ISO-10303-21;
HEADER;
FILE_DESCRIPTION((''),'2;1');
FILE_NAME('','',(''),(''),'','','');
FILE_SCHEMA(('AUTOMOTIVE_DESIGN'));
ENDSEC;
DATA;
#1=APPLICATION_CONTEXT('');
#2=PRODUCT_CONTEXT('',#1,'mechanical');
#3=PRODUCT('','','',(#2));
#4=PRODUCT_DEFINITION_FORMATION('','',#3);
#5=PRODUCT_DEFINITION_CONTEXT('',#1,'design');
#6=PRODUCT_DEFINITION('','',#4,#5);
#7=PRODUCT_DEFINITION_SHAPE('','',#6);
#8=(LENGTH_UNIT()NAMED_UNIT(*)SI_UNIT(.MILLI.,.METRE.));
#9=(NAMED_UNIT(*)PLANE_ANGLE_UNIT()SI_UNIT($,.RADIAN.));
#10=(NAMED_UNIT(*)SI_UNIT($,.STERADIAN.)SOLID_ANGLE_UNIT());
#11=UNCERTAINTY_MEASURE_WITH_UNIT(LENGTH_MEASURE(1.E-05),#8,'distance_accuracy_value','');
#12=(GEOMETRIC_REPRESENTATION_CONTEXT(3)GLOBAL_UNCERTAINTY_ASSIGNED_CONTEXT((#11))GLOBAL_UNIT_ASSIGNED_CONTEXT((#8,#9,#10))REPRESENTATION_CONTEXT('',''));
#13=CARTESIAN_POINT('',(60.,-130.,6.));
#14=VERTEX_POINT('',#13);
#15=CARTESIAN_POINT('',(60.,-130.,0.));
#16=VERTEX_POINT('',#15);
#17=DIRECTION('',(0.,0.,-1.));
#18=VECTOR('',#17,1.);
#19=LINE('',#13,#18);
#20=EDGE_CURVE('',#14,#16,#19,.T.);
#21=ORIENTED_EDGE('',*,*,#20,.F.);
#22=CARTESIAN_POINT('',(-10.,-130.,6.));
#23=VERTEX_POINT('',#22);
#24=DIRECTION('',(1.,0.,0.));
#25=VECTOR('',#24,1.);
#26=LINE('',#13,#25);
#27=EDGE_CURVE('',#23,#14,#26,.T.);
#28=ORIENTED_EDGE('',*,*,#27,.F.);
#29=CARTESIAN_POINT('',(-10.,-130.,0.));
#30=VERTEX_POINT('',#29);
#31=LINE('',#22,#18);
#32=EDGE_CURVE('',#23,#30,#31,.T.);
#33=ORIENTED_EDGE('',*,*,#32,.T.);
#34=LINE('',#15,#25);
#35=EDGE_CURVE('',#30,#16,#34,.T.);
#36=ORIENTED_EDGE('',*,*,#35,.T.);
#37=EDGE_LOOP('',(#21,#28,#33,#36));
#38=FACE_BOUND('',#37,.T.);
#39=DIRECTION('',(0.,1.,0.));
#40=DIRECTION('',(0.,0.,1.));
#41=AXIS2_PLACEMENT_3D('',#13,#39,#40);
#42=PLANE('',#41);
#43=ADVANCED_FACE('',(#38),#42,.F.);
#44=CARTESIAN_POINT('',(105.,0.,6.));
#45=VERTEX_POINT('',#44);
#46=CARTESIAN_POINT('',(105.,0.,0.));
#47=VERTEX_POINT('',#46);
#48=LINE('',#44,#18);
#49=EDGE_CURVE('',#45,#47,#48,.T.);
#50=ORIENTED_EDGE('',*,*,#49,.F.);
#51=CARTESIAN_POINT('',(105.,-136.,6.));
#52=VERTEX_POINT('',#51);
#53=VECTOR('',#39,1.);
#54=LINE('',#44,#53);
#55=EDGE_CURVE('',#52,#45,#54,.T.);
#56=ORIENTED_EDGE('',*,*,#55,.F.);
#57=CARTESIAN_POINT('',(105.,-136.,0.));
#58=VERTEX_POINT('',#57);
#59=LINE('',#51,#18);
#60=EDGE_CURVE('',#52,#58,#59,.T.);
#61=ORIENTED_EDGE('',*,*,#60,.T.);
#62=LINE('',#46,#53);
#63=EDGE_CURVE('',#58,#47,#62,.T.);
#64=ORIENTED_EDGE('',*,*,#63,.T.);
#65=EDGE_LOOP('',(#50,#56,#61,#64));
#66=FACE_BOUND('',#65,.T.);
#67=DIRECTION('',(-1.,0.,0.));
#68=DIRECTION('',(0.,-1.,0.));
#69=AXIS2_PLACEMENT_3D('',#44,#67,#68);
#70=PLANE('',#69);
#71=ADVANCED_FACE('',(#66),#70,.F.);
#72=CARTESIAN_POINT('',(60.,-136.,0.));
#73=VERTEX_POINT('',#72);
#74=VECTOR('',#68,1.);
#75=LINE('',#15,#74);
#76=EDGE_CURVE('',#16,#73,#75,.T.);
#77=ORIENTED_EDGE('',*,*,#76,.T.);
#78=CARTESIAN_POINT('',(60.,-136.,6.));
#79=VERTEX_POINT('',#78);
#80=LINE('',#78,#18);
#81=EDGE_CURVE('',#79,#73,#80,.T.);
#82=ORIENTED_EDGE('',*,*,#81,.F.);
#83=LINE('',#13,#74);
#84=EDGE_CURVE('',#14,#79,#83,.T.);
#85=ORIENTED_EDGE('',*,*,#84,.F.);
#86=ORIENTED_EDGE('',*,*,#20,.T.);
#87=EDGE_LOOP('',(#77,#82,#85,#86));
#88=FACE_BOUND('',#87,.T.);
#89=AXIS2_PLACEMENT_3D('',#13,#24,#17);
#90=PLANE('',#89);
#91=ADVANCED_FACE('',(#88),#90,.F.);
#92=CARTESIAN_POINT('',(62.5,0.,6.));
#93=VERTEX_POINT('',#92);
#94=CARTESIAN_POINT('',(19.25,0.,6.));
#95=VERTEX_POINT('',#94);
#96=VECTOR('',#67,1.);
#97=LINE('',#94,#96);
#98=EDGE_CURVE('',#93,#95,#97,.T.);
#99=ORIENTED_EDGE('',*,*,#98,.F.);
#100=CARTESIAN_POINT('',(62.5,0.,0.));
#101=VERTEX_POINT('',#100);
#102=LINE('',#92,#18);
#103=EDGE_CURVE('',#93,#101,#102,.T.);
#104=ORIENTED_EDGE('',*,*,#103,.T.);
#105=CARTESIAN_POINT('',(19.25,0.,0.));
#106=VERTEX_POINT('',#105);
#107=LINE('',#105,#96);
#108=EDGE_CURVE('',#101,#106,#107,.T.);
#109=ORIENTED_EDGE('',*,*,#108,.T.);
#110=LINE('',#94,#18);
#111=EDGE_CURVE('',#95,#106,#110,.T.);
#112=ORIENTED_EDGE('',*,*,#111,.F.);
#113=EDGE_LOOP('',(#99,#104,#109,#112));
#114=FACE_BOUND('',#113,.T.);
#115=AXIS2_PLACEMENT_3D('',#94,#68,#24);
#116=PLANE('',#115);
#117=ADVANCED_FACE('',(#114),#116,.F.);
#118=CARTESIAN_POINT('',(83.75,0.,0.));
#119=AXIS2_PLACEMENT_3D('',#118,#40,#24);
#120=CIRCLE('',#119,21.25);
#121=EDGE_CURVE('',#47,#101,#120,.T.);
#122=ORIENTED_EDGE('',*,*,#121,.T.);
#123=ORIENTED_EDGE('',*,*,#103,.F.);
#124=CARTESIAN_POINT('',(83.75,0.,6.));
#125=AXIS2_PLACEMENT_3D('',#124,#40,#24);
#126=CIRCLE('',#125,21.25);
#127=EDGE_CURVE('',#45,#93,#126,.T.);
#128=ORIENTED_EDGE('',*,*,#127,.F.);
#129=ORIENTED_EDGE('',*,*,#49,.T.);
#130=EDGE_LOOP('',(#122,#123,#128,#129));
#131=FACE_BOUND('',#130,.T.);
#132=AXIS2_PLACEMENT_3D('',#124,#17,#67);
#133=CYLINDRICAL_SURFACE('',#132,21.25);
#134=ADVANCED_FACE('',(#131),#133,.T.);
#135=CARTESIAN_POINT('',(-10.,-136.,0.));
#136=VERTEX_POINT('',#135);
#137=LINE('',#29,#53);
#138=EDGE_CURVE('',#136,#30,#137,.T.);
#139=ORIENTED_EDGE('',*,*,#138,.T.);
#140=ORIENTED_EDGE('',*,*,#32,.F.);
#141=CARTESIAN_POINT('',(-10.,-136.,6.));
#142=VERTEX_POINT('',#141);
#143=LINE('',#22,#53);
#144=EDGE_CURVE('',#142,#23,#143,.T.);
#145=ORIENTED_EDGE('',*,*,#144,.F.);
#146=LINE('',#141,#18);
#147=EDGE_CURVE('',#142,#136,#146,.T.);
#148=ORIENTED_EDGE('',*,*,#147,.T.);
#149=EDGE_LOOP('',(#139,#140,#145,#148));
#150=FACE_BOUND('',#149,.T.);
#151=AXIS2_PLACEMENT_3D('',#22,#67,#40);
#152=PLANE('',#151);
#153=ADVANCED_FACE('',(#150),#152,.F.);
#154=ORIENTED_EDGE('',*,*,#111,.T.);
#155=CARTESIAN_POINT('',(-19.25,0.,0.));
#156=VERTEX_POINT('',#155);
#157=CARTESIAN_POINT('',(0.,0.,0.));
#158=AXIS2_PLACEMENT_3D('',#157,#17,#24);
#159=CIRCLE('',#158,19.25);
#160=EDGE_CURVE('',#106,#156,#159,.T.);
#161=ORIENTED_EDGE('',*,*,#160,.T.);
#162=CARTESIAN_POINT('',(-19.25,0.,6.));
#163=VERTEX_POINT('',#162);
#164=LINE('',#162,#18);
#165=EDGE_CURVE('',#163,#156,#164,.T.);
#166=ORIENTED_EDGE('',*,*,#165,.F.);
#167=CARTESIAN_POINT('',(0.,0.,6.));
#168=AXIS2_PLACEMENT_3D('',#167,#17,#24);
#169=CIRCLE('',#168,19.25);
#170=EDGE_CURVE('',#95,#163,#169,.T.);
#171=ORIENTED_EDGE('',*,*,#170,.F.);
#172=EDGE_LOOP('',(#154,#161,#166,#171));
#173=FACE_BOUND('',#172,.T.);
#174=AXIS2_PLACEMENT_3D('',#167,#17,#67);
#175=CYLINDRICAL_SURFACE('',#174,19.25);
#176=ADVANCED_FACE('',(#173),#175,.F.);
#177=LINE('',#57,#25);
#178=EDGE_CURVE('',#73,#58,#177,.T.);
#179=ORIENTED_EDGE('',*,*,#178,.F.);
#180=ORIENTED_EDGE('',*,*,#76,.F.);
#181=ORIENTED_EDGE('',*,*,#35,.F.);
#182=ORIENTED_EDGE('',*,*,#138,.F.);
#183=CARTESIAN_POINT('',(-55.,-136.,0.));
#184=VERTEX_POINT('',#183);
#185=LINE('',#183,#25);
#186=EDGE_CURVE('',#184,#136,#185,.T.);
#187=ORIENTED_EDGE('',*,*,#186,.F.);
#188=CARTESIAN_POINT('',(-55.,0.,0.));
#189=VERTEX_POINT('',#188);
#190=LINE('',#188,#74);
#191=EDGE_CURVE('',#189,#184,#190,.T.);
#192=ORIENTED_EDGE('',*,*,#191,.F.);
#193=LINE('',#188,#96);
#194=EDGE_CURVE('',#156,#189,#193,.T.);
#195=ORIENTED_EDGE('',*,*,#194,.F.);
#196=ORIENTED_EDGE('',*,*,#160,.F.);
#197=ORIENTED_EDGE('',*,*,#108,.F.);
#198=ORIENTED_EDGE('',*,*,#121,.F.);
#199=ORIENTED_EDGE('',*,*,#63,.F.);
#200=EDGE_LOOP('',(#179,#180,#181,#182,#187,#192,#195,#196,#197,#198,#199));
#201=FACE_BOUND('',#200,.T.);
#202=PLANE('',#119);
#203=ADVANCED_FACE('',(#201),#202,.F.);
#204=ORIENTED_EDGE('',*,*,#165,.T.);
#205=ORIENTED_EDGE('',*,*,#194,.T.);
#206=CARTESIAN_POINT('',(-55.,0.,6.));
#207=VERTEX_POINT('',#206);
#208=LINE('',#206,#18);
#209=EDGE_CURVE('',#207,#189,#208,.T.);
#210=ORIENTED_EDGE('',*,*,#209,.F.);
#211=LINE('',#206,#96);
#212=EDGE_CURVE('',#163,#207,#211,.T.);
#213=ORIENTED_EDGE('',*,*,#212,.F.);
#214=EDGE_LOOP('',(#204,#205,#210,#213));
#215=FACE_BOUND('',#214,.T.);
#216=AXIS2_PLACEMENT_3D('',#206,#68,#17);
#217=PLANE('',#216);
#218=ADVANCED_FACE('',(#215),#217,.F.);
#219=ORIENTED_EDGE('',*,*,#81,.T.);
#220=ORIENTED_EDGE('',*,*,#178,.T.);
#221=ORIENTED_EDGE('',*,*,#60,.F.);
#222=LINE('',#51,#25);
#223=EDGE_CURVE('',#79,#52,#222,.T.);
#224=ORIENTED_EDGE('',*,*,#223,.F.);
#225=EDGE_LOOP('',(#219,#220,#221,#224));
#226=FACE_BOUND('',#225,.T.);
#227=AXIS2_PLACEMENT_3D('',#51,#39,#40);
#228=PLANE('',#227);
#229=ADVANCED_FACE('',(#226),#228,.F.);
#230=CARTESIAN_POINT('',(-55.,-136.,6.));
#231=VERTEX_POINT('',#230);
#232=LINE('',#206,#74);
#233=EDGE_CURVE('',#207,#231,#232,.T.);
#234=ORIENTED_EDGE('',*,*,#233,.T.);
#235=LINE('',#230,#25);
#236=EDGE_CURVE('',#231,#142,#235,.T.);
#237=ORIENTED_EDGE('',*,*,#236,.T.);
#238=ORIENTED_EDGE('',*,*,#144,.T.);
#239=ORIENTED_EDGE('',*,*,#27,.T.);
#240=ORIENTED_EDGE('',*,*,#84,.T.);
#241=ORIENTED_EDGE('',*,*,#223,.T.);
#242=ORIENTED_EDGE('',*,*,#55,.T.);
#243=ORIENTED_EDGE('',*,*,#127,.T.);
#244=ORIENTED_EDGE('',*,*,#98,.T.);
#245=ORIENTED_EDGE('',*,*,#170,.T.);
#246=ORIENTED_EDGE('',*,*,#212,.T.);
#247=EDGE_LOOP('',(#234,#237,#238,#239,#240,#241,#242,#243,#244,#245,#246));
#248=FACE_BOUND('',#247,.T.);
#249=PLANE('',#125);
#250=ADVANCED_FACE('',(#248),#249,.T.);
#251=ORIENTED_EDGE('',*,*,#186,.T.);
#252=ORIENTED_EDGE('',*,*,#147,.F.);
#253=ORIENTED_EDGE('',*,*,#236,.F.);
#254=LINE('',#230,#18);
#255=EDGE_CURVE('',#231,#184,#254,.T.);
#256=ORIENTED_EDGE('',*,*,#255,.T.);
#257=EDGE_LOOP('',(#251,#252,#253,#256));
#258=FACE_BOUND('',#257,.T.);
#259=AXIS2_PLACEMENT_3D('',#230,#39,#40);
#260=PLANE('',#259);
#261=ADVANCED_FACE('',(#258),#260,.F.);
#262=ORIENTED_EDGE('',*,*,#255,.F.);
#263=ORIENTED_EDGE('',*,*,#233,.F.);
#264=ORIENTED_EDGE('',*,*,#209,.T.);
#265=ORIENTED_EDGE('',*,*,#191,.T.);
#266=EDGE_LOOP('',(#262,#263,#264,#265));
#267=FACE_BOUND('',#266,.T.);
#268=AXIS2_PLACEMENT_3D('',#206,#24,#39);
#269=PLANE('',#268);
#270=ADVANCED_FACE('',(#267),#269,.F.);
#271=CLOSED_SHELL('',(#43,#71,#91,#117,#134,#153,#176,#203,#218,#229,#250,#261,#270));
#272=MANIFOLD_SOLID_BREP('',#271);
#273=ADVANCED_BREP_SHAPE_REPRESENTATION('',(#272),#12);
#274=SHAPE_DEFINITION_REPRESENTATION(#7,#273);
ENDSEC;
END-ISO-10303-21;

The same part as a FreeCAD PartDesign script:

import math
import FreeCAD as App
import Part
import Sketcher
from FreeCAD import Vector

doc = App.newDocument("Part")
body = doc.addObject("PartDesign::Body", "Body")

# Sketch on XY plane
sketch1 = doc.addObject("Sketcher::SketchObject", "Sketch")
body.addObject(sketch1)
sketch1.AttachmentSupport = (doc.XY_Plane, [""])
sketch1.MapMode = "FlatFace"
sketch1.addGeometry([
    Part.LineSegment(Vector(-19.25, 0, 0), Vector(-55, 0, 0)),  # 0
    Part.LineSegment(Vector(-55, 0, 0), Vector(-55, -136, 0)),  # 1
    Part.LineSegment(Vector(-55, -136, 0), Vector(-10, -136, 0)),  # 2
    Part.LineSegment(Vector(-10, -136, 0), Vector(-10, -130, 0)),  # 3
    Part.LineSegment(Vector(-10, -130, 0), Vector(60, -130, 0)),  # 4
    Part.LineSegment(Vector(60, -130, 0), Vector(60, -136, 0)),  # 5
    Part.LineSegment(Vector(60, -136, 0), Vector(105, -136, 0)),  # 6
    Part.LineSegment(Vector(105, -136, 0), Vector(105, 0, 0)),  # 7
    Part.ArcOfCircle(Part.Circle(Vector(83.75, 0, 0), Vector(0, 0, 1), 21.25), math.radians(0), math.radians(180)),  # 8
    Part.LineSegment(Vector(62.5, 0, 0), Vector(19.25, 0, 0)),  # 9
    Part.ArcOfCircle(Part.Circle(Vector(0, 0, 0), Vector(0, 0, 1), 19.25), math.radians(180), math.radians(360)),  # 10
], False)
sketch1.addConstraint([
    Sketcher.Constraint("Coincident", 0, 2, 1, 1),
    Sketcher.Constraint("Coincident", 1, 2, 2, 1),
    Sketcher.Constraint("Coincident", 2, 2, 3, 1),
    Sketcher.Constraint("Coincident", 3, 2, 4, 1),
    Sketcher.Constraint("Coincident", 4, 2, 5, 1),
    Sketcher.Constraint("Coincident", 5, 2, 6, 1),
    Sketcher.Constraint("Coincident", 6, 2, 7, 1),
    Sketcher.Constraint("Tangent", 7, 2, 8, 1),
    Sketcher.Constraint("Coincident", 8, 2, 9, 1),
    Sketcher.Constraint("Coincident", 9, 2, 10, 2),
    Sketcher.Constraint("Coincident", 10, 1, 0, 1),
    Sketcher.Constraint("Horizontal", 0),
    Sketcher.Constraint("Vertical", 1),
    Sketcher.Constraint("Horizontal", 2),
    Sketcher.Constraint("Vertical", 3),
    Sketcher.Constraint("Horizontal", 4),
    Sketcher.Constraint("Vertical", 5),
    Sketcher.Constraint("Horizontal", 6),
    Sketcher.Constraint("Vertical", 7),
    Sketcher.Constraint("Horizontal", 9),
    Sketcher.Constraint("Coincident", 10, 3, -1, 1),
    Sketcher.Constraint("PointOnObject", 8, 3, -1),
    Sketcher.Constraint("PointOnObject", 0, 2, -1),
    Sketcher.Constraint("PointOnObject", 8, 2, -1),
    Sketcher.Constraint("Horizontal", 2, 2, 5, 2),
    Sketcher.Constraint("Equal", 2, 6),
    Sketcher.Constraint("DistanceX", 2, 1, 2, 2, 45.0),
    Sketcher.Constraint("DistanceX", 4, 1, 4, 2, 70.0),
    Sketcher.Constraint("DistanceY", 1, 2, 1, 1, 136.0),
    Sketcher.Constraint("DistanceY", 3, 1, 3, 2, 6.0),
    Sketcher.Constraint("Radius", 8, 21.25),
    Sketcher.Constraint("Radius", 10, 19.25),
    Sketcher.Constraint("DistanceX", 0, 2, -1, 1, 55.0),
])
pad1 = doc.addObject("PartDesign::Pad", "Pad")
body.addObject(pad1)
pad1.Profile = sketch1
pad1.Length = 6

doc.recompute()
